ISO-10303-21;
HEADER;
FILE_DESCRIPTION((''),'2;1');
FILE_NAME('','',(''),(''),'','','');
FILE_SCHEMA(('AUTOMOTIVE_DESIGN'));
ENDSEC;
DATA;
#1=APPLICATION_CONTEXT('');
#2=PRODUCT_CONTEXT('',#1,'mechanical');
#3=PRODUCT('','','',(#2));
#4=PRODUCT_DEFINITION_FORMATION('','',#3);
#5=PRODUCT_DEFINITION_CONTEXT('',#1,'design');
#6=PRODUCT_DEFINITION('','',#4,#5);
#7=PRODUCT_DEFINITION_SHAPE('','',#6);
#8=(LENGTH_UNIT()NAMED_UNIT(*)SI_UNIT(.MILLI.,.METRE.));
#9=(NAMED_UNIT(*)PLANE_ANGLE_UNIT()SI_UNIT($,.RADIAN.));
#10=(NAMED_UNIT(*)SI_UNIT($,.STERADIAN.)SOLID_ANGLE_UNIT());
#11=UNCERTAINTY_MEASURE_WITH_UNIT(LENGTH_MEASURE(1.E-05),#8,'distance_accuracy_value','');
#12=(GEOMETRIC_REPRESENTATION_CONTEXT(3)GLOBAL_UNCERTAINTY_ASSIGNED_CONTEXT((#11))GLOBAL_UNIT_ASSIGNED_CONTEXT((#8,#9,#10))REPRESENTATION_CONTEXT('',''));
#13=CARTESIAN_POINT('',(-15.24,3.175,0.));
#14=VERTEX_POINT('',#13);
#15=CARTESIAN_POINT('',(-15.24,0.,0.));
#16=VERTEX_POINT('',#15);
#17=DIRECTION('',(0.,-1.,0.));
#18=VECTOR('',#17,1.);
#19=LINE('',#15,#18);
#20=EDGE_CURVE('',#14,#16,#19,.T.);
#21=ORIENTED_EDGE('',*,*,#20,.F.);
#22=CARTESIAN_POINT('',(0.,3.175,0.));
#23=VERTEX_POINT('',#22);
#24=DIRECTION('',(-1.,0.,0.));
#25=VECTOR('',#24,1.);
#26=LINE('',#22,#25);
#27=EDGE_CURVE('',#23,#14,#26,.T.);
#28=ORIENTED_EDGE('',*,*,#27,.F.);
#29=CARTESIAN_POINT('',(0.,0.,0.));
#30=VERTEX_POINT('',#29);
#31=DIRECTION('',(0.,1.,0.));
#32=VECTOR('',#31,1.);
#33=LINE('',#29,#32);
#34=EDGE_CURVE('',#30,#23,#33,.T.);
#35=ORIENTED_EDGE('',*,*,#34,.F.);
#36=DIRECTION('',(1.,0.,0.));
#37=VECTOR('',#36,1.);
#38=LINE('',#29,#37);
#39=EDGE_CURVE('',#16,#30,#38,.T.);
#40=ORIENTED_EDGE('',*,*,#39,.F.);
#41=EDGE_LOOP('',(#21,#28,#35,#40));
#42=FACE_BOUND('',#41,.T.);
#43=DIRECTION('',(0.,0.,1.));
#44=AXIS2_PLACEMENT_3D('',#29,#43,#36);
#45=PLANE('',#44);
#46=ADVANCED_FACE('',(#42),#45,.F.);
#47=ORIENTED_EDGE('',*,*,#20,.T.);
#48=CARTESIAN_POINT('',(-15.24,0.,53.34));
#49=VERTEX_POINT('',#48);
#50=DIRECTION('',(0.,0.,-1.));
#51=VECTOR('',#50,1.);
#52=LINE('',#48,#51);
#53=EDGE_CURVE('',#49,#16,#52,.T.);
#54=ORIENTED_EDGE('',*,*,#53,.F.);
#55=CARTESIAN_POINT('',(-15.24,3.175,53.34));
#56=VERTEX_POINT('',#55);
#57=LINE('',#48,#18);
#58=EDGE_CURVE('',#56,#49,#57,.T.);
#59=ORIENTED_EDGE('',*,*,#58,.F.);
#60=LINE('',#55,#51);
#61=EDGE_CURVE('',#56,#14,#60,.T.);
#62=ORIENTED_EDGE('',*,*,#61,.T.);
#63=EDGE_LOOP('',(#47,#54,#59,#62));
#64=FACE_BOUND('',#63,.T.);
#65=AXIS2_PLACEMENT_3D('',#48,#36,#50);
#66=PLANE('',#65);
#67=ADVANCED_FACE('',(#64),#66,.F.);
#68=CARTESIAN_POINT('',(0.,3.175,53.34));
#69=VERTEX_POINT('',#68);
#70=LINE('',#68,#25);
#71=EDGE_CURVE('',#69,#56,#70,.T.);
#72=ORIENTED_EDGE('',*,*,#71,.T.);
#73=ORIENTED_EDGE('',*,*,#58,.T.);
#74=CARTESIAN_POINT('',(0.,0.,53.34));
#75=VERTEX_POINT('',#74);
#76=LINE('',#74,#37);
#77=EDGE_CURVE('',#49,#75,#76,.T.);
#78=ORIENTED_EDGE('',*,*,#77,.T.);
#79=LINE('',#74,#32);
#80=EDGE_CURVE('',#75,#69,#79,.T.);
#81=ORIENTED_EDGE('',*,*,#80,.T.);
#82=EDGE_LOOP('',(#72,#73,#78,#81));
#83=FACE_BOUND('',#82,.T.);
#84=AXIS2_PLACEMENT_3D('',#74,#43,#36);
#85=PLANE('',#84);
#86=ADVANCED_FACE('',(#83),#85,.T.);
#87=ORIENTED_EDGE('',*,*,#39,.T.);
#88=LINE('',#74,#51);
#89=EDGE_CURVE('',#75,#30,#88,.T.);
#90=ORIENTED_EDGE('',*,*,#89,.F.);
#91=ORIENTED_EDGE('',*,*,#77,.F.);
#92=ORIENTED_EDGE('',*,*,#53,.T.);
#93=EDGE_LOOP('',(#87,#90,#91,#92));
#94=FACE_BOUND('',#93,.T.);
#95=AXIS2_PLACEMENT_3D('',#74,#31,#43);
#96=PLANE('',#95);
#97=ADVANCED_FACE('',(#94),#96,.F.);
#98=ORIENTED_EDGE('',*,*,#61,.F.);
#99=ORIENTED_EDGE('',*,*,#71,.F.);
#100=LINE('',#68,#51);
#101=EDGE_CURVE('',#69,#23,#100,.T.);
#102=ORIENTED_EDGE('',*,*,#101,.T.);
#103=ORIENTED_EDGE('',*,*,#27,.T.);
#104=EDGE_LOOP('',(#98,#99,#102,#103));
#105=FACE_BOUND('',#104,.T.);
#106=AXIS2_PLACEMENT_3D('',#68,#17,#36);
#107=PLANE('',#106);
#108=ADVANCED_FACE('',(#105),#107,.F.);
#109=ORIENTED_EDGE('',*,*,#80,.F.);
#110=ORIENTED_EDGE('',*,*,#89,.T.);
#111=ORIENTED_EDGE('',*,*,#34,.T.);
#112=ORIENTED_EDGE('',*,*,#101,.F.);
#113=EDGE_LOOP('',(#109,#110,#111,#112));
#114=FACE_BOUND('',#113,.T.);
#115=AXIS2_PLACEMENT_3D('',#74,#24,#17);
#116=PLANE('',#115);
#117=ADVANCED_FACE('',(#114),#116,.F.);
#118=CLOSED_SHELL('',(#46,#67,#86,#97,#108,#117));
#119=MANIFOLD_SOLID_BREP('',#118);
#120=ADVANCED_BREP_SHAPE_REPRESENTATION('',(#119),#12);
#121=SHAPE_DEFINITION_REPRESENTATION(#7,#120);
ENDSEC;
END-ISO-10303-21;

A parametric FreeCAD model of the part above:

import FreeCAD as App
import Part
import Sketcher

V = App.Vector
Q = App.Units.Quantity


def add_polygon(sketch, points):
    """Adds a closed chain of lines whose ends are joined by coincident constraints."""
    first, n = sketch.GeometryCount, len(points)
    for a, b in zip(points, points[1:] + points[:1]):
        sketch.addGeometry(Part.LineSegment(App.Vector(*a, 0), App.Vector(*b, 0)), False)
    for i in range(n):
        sketch.addConstraint(Sketcher.Constraint("Coincident", first + i, 2, first + (i + 1) % n, 1))

doc = App.newDocument("Part")
params = doc.addObject("Spreadsheet::Sheet", "Params")
for row, (alias, value) in enumerate([
    ("sketch1_width", "0.6 in"),
    ("sketch1_height", "0.125 in"),
    ("pad1_length", "2.1 in"),
], start=1):
    params.set(f"A{row}", alias)
    params.set(f"B{row}", "=" + value)
    params.setAlias(f"B{row}", alias)

body = doc.addObject("PartDesign::Body", "Body")

# Sketch on XY plane
sketch1 = body.newObject("Sketcher::SketchObject", "Sketch")
sketch1.AttachmentSupport = (doc.getObject("XY_Plane"), [""])
sketch1.MapMode = "FlatFace"
add_polygon(sketch1, [(-15.2, 3.2), (-15.2, 0), (0, 0), (0, 3.2)])  # lines 0-3
sketch1.addConstraint([
    Sketcher.Constraint("Vertical", 0),
    Sketcher.Constraint("Horizontal", 1),
    Sketcher.Constraint("Vertical", 2),
    Sketcher.Constraint("Horizontal", 3),
    Sketcher.Constraint("Coincident", 1, 2, -1, 1),
    Sketcher.Constraint("DistanceX", 1, 1, 1, 2, Q("0.6 in")),
    Sketcher.Constraint("DistanceY", 0, 2, 0, 1, Q("0.125 in")),
])
sketch1.setExpression("Constraints[9]", "Params.sketch1_width")
sketch1.setExpression("Constraints[10]", "Params.sketch1_height")
pad1 = body.newObject("PartDesign::Pad", "Pad")
pad1.Profile = sketch1
pad1.setExpression("Length", "Params.pad1_length")

doc.recompute()
